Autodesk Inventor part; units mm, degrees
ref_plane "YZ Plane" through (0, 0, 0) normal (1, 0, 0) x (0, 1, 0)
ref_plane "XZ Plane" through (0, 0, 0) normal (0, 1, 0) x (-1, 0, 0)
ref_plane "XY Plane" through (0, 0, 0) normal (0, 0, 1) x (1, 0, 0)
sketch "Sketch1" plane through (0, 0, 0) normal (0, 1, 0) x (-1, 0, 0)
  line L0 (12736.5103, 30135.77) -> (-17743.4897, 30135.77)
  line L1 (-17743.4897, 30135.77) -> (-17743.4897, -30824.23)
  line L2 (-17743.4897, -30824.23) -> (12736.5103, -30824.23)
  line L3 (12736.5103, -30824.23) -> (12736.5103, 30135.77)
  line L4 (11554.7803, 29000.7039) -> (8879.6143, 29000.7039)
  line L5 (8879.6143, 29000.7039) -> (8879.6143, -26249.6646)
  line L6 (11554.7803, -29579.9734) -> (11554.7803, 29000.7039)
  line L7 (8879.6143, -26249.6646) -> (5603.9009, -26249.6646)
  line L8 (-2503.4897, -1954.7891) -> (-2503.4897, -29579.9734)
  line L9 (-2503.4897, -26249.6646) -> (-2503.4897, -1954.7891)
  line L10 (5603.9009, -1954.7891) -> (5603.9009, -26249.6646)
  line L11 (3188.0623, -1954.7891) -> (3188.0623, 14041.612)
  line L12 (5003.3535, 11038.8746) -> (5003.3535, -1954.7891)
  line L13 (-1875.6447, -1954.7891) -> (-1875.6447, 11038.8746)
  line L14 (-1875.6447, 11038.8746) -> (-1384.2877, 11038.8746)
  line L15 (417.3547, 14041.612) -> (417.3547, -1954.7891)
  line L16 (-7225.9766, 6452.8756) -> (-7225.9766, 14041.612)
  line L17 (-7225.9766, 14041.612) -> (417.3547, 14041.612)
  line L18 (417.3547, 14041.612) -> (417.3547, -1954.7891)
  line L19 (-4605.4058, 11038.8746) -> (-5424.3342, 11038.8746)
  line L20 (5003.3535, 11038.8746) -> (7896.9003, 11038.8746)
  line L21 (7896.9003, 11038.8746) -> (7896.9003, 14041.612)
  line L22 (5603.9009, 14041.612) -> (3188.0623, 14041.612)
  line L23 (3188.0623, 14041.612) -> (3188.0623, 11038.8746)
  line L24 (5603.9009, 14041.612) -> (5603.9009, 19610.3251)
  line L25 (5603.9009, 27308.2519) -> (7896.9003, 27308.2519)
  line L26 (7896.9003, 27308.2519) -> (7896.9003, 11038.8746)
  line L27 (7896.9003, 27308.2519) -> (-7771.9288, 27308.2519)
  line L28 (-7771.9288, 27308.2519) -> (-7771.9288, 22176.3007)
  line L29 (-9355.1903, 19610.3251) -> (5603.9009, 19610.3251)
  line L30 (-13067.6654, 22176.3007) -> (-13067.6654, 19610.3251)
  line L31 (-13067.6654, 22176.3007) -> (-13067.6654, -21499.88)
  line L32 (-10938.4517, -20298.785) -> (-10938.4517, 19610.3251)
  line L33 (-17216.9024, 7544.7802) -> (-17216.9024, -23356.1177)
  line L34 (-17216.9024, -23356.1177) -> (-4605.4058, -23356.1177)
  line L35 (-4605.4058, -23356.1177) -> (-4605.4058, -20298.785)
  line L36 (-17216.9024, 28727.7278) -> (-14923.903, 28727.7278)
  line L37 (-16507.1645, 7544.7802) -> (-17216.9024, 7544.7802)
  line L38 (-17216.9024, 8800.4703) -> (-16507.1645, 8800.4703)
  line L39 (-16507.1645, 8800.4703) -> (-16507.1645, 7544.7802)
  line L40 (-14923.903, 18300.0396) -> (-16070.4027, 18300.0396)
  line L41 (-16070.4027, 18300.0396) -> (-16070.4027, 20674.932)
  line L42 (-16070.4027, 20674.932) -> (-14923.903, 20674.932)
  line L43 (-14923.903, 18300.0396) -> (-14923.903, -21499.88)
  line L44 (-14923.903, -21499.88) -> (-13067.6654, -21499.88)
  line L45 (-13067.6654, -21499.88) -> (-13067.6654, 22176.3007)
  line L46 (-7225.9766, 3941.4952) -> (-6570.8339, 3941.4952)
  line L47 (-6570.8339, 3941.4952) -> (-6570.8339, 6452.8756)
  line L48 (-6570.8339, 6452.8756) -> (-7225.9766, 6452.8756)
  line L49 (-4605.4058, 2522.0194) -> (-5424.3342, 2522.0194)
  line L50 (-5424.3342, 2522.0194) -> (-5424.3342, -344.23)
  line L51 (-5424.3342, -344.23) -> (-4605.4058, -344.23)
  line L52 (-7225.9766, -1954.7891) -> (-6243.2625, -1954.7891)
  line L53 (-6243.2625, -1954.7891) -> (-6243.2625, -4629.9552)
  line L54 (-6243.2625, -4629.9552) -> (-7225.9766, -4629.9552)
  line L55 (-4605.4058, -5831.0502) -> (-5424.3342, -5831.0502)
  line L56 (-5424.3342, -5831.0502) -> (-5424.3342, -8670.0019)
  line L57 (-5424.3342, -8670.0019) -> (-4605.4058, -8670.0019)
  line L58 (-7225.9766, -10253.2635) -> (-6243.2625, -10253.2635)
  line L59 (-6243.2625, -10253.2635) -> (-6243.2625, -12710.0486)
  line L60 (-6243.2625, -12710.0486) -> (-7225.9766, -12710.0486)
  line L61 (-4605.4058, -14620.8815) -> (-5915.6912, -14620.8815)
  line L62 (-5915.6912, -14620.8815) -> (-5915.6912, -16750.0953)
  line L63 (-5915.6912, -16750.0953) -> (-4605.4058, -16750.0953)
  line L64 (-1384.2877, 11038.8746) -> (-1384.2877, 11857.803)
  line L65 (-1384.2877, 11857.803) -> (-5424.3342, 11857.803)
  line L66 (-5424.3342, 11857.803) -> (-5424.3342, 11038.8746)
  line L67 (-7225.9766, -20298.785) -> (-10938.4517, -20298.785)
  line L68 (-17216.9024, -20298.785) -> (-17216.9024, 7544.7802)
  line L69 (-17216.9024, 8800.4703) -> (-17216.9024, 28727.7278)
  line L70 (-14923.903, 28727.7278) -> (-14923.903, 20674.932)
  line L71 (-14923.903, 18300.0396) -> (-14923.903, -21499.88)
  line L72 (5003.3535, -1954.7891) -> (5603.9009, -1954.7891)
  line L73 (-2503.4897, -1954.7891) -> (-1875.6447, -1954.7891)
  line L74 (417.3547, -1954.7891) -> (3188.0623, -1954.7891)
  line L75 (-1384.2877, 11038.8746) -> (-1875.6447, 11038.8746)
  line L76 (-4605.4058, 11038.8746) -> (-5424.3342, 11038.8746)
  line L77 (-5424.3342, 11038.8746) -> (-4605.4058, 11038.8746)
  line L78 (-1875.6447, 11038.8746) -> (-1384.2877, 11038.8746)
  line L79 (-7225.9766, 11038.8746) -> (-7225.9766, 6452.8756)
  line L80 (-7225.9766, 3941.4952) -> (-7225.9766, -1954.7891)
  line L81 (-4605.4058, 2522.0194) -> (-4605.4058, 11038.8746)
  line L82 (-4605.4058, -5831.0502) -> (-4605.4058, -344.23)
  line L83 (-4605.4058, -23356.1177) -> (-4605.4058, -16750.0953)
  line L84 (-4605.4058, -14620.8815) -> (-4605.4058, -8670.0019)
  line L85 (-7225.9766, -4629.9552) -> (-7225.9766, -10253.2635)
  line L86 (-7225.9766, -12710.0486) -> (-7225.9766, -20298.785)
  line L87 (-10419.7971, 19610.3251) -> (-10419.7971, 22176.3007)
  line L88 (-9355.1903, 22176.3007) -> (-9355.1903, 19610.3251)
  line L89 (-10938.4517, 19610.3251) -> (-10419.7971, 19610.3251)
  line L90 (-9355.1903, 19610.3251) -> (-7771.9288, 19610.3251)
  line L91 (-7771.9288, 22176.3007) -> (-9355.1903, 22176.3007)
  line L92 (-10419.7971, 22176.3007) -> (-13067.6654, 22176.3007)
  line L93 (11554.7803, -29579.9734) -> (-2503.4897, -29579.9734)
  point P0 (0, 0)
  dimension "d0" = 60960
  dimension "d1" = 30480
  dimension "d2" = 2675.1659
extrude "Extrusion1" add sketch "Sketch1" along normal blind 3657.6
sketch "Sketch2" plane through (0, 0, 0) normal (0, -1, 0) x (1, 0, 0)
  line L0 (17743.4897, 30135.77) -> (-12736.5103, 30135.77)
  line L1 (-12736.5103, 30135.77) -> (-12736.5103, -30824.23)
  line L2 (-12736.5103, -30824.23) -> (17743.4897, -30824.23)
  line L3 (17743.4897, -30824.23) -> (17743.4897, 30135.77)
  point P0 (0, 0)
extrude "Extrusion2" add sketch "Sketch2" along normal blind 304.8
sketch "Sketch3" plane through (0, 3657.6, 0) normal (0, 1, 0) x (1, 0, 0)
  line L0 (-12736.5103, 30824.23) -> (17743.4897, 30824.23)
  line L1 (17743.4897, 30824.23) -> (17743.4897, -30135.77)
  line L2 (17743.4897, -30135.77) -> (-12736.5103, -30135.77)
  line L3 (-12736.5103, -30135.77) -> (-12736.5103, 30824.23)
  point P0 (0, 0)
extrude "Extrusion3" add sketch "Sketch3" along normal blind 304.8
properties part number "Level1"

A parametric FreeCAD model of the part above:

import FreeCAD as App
import Part
import Sketcher
Q = App.Units.Quantity


def add_polygon(sketch, points):
    """Adds a closed chain of lines whose ends are joined by coincident constraints."""
    first, n = sketch.GeometryCount, len(points)
    for a, b in zip(points, points[1:] + points[:1]):
        sketch.addGeometry(Part.LineSegment(App.Vector(*a, 0), App.Vector(*b, 0)), False)
    for i in range(n):
        sketch.addConstraint(Sketcher.Constraint("Coincident", first + i, 2, first + (i + 1) % n, 1))

doc = App.newDocument("Part")
body = doc.addObject("PartDesign::Body", "Body")

sketch1 = body.newObject("Sketcher::SketchObject", "Sketch")
sketch1.AttachmentSupport = (doc.getObject("XZ_Plane"), [""])
sketch1.MapMode = "FlatFace"
add_polygon(sketch1, [(-12736.5103, -30824.23), (-12736.5103, 30135.77), (17743.4897, 30135.77), (17743.4897, -30824.23)])
add_polygon(sketch1, [(-8879.6143, 29000.7039), (-11554.7803, 29000.7039), (-11554.7803, -29579.9734), (2503.4897, -29579.9734), (2503.4897, -1954.7891), (1875.6447, -1954.7891), (1875.6447, 11038.8746), (1384.2877, 11038.8746), (1384.2877, 11857.803), (5424.3342, 11857.803), (5424.3342, 11038.8746), (4605.4058, 11038.8746), (4605.4058, 2522.0194), (5424.3342, 2522.0194), (5424.3342, -344.23), (4605.4058, -344.23), (4605.4058, -5831.0502), (5424.3342, -5831.0502), (5424.3342, -8670.0019), (4605.4058, -8670.0019), (4605.4058, -14620.8815), (5915.6912, -14620.8815), (5915.6912, -16750.0953), (4605.4058, -16750.0953), (4605.4058, -23356.1177), (17216.9024, -23356.1177), (17216.9024, 7544.7802), (16507.1645, 7544.7802), (16507.1645, 8800.4703), (17216.9024, 8800.4703), (17216.9024, 28727.7278), (14923.903, 28727.7278), (14923.903, 20674.932), (16070.4027, 20674.932), (16070.4027, 18300.0396), (14923.903, 18300.0396), (14923.903, -21499.88), (13067.6654, -21499.88), (13067.6654, 22176.3007), (10419.7971, 22176.3007), (10419.7971, 19610.3251), (10938.4517, 19610.3251), (10938.4517, -20298.785), (7225.9766, -20298.785), (7225.9766, -12710.0486), (6243.2625, -12710.0486), (6243.2625, -10253.2635), (7225.9766, -10253.2635), (7225.9766, -4629.9552), (6243.2625, -4629.9552), (6243.2625, -1954.7891), (7225.9766, -1954.7891), (7225.9766, 3941.4952), (6570.8339, 3941.4952), (6570.8339, 6452.8756), (7225.9766, 6452.8756), (7225.9766, 14041.612), (-417.3547, 14041.612), (-417.3547, -1954.7891), (-3188.0623, -1954.7891), (-3188.0623, 14041.612), (-5603.9009, 14041.612), (-5603.9009, 19610.3251), (9355.1903, 19610.3251), (9355.1903, 22176.3007), (7771.9288, 22176.3007), (7771.9288, 27308.2519), (-7896.9003, 27308.2519), (-7896.9003, 11038.8746), (-5003.3535, 11038.8746), (-5003.3535, -1954.7891), (-5603.9009, -1954.7891), (-5603.9009, -26249.6646), (-8879.6143, -26249.6646)])
sketch1.addConstraint([
    Sketcher.Constraint("Vertical", 0),
    Sketcher.Constraint("Horizontal", 1),
    Sketcher.Constraint("Vertical", 2),
    Sketcher.Constraint("Horizontal", 3),
    Sketcher.Constraint("Horizontal", 4),
    Sketcher.Constraint("Vertical", 5),
    Sketcher.Constraint("Horizontal", 6),
    Sketcher.Constraint("Vertical", 7),
    Sketcher.Constraint("Horizontal", 8),
    Sketcher.Constraint("Vertical", 9),
    Sketcher.Constraint("Horizontal", 10),
    Sketcher.Constraint("Vertical", 11),
    Sketcher.Constraint("Horizontal", 12),
    Sketcher.Constraint("Vertical", 13),
    Sketcher.Constraint("Horizontal", 14),
    Sketcher.Constraint("Vertical", 15),
    Sketcher.Constraint("Horizontal", 16),
    Sketcher.Constraint("Vertical", 17),
    Sketcher.Constraint("Horizontal", 18),
    Sketcher.Constraint("Vertical", 19),
    Sketcher.Constraint("Horizontal", 20),
    Sketcher.Constraint("Vertical", 21),
    Sketcher.Constraint("Horizontal", 22),
    Sketcher.Constraint("Vertical", 23),
    Sketcher.Constraint("Horizontal", 24),
    Sketcher.Constraint("Vertical", 25),
    Sketcher.Constraint("Horizontal", 26),
    Sketcher.Constraint("Vertical", 27),
    Sketcher.Constraint("Horizontal", 28),
    Sketcher.Constraint("Vertical", 29),
    Sketcher.Constraint("Horizontal", 30),
    Sketcher.Constraint("Vertical", 31),
    Sketcher.Constraint("Horizontal", 32),
    Sketcher.Constraint("Vertical", 33),
    Sketcher.Constraint("Horizontal", 34),
    Sketcher.Constraint("Vertical", 35),
    Sketcher.Constraint("Horizontal", 36),
    Sketcher.Constraint("Vertical", 37),
    Sketcher.Constraint("Horizontal", 38),
    Sketcher.Constraint("Vertical", 39),
    Sketcher.Constraint("Horizontal", 40),
    Sketcher.Constraint("Vertical", 41),
    Sketcher.Constraint("Horizontal", 42),
    Sketcher.Constraint("Vertical", 43),
    Sketcher.Constraint("Horizontal", 44),
    Sketcher.Constraint("Vertical", 45),
    Sketcher.Constraint("Horizontal", 46),
    Sketcher.Constraint("Vertical", 47),
    Sketcher.Constraint("Horizontal", 48),
    Sketcher.Constraint("Vertical", 49),
    Sketcher.Constraint("Horizontal", 50),
    Sketcher.Constraint("Vertical", 51),
    Sketcher.Constraint("Horizontal", 52),
    Sketcher.Constraint("Vertical", 53),
    Sketcher.Constraint("Horizontal", 54),
    Sketcher.Constraint("Vertical", 55),
    Sketcher.Constraint("Horizontal", 56),
    Sketcher.Constraint("Vertical", 57),
    Sketcher.Constraint("Horizontal", 58),
    Sketcher.Constraint("Vertical", 59),
    Sketcher.Constraint("Horizontal", 60),
    Sketcher.Constraint("Vertical", 61),
    Sketcher.Constraint("Horizontal", 62),
    Sketcher.Constraint("Vertical", 63),
    Sketcher.Constraint("Horizontal", 64),
    Sketcher.Constraint("Vertical", 65),
    Sketcher.Constraint("Horizontal", 66),
    Sketcher.Constraint("Vertical", 67),
    Sketcher.Constraint("Horizontal", 68),
    Sketcher.Constraint("Vertical", 69),
    Sketcher.Constraint("Horizontal", 70),
    Sketcher.Constraint("Vertical", 71),
    Sketcher.Constraint("Horizontal", 72),
    Sketcher.Constraint("Vertical", 73),
    Sketcher.Constraint("Horizontal", 74),
    Sketcher.Constraint("Vertical", 75),
    Sketcher.Constraint("Horizontal", 76),
    Sketcher.Constraint("Vertical", 77),
    Sketcher.Constraint("Horizontal", 10, 2, 13, 2),
    Sketcher.Constraint("Horizontal", 8, 2, 53, 2),
    Sketcher.Constraint("Horizontal", 54, 2, 61, 2),
    Sketcher.Constraint("Horizontal", 60, 2, 63, 2),
    Sketcher.Constraint("Horizontal", 44, 2, 65, 2),
    Sketcher.Constraint("Horizontal", 42, 2, 67, 2),
    Sketcher.Constraint("Horizontal", 14, 2, 71, 2),
    Sketcher.Constraint("Horizontal", 62, 2, 73, 2),
    Sketcher.Constraint("Vertical", 13, 2, 16, 2),
    Sketcher.Constraint("Vertical", 15, 2, 18, 2),
    Sketcher.Constraint("Vertical", 17, 2, 20, 2),
    Sketcher.Constraint("Vertical", 19, 2, 22, 2),
    Sketcher.Constraint("Vertical", 23, 2, 26, 2),
    Sketcher.Constraint("Vertical", 29, 2, 32, 2),
    Sketcher.Constraint("Vertical", 35, 2, 38, 2),
    Sketcher.Constraint("Vertical", 47, 2, 50, 2),
    Sketcher.Constraint("Vertical", 49, 2, 52, 2),
    Sketcher.Constraint("Vertical", 51, 2, 54, 2),
    Sketcher.Constraint("Vertical", 55, 2, 58, 2),
    Sketcher.Constraint("Vertical", 65, 2, 74, 2),
    Sketcher.Constraint("Equal", 22, 11),
    Sketcher.Constraint("Equal", 4, 53),
    Sketcher.Constraint("Equal", 47, 59),
    Sketcher.Constraint("DistanceX", 1, 1, 1, 2, Q("1200 in")),
    Sketcher.Constraint("DistanceY", 0, 1, 0, 2, Q("2400 in")),
    Sketcher.Constraint("DistanceX", 4, 2, 4, 1, Q("105.3215 in")),
    Sketcher.Constraint("DistanceY", -1, 1, 4, 2, Q("1141.76 in")),
    Sketcher.Constraint("DistanceX", 6, 1, 6, 2, Q("553.4752 in")),
    Sketcher.Constraint("DistanceX", 8, 2, 8, 1, Q("24.7183 in")),
    Sketcher.Constraint("DistanceX", 66, 1, 66, 2, Q("588.9406 in")),
    Sketcher.Constraint("DistanceX", 74, 2, 74, 1, Q("23.6436 in")),
    Sketcher.Constraint("DistanceX", 76, 2, 76, 1, Q("128.9651 in")),
    Sketcher.Constraint("DistanceY", 23, 2, 23, 1, Q("234.2866 in")),
    Sketcher.Constraint("DistanceY", 33, 1, 33, 2, Q("784.5377 in")),
    Sketcher.Constraint("DistanceY", 35, 2, 35, 1, Q("317.0392 in")),
    Sketcher.Constraint("DistanceY", 37, 2, 37, 1, Q("93.4997 in")),
    Sketcher.Constraint("DistanceY", 45, 2, 45, 1, Q("1571.2248 in")),
    Sketcher.Constraint("DistanceY", 51, 1, 51, 2, Q("221.3901 in")),
    Sketcher.Constraint("DistanceY", -1, 1, 37, 2, Q("720.474 in")),
    Sketcher.Constraint("DistanceX", 10, 2, 10, 1, Q("491.357 mm")),
    Sketcher.Constraint("DistanceX", 12, 1, 12, 2, Q("4040.0465 mm")),
    Sketcher.Constraint("DistanceX", 14, 2, 14, 1, Q("818.9284 mm")),
    Sketcher.Constraint("DistanceX", 24, 1, 24, 2, Q("1310.2854 mm")),
    Sketcher.Constraint("DistanceX", 28, 1, 28, 2, Q("12611.4966 mm")),
    Sketcher.Constraint("DistanceX", 30, 2, 30, 1, Q("709.738 mm")),
    Sketcher.Constraint("DistanceX", 34, 2, 34, 1, Q("2292.9994 mm")),
    Sketcher.Constraint("DistanceX", 36, 1, 36, 2, Q("1146.4997 mm")),
    Sketcher.Constraint("DistanceX", 40, 2, 40, 1, Q("1856.2376 mm")),
    Sketcher.Constraint("DistanceX", 42, 2, 42, 1, Q("2647.8683 mm")),
    Sketcher.Constraint("DistanceX", 44, 1, 44, 2, Q("518.6546 mm")),
    Sketcher.Constraint("DistanceX", 46, 2, 46, 1, Q("3712.475 mm")),
    Sketcher.Constraint("DistanceX", 48, 2, 48, 1, Q("982.714 mm")),
    Sketcher.Constraint("DistanceX", 56, 2, 56, 1, Q("655.1427 mm")),
    Sketcher.Constraint("DistanceX", 60, 2, 60, 1, Q("7643.3313 mm")),
    Sketcher.Constraint("DistanceX", 62, 2, 62, 1, Q("2770.7076 mm")),
    Sketcher.Constraint("DistanceX", 68, 2, 68, 1, Q("1583.2615 mm")),
    Sketcher.Constraint("DistanceX", 70, 2, 70, 1, Q("15668.829 mm")),
    Sketcher.Constraint("DistanceY", 5, 2, 5, 1, Q("58580.6773 mm")),
    Sketcher.Constraint("DistanceY", 7, 1, 7, 2, Q("27625.1843 mm")),
    Sketcher.Constraint("DistanceY", 9, 1, 9, 2, Q("12993.6637 mm")),
    Sketcher.Constraint("DistanceY", 15, 2, 15, 1, Q("8516.8552 mm")),
    Sketcher.Constraint("DistanceY", 17, 2, 17, 1, Q("2866.2494 mm")),
    Sketcher.Constraint("DistanceY", 19, 2, 19, 1, Q("5486.8202 mm")),
    Sketcher.Constraint("DistanceY", 21, 2, 21, 1, Q("2838.9517 mm")),
    Sketcher.Constraint("DistanceY", 25, 2, 25, 1, Q("2129.2138 mm")),
    Sketcher.Constraint("DistanceY", 27, 2, 27, 1, Q("6606.0224 mm")),
    Sketcher.Constraint("DistanceY", 29, 1, 29, 2, Q("30900.898 mm")),
    Sketcher.Constraint("DistanceY", 39, 2, 39, 1, Q("39799.9196 mm")),
    Sketcher.Constraint("DistanceY", 41, 1, 41, 2, Q("43676.1807 mm")),
    Sketcher.Constraint("DistanceY", 43, 2, 43, 1, Q("2565.9756 mm")),
    Sketcher.Constraint("DistanceY", 47, 1, 47, 2, Q("7588.7364 mm")),
    Sketcher.Constraint("DistanceY", 55, 1, 55, 2, Q("5896.2843 mm")),
    Sketcher.Constraint("DistanceY", 57, 1, 57, 2, Q("2511.3804 mm")),
    Sketcher.Constraint("DistanceY", 69, 1, 69, 2, Q("5131.9512 mm")),
    Sketcher.Constraint("DistanceY", 75, 2, 75, 1, Q("24294.8755 mm")),
    Sketcher.Constraint("DistanceX", 4, 2, -1, 1, Q("454.9126 in")),
    Sketcher.Constraint("DistanceX", 0, 2, -1, 1, Q("12736.5103 mm")),
    Sketcher.Constraint("DistanceY", -1, 1, 0, 2, Q("30135.77 mm")),
])
pad1 = body.newObject("PartDesign::Pad", "Pad")
pad1.Profile = sketch1
pad1.Length = Q("144 in")
pad1.Reversed = True

sketch2 = body.newObject("Sketcher::SketchObject", "Sketch001")
sketch2.AttachmentSupport = (doc.getObject("XZ_Plane"), [""])
sketch2.MapMode = "FlatFace"
add_polygon(sketch2, [(17743.4897, -30824.23), (17743.4897, 30135.77), (-12736.5103, 30135.77), (-12736.5103, -30824.23)])
sketch2.addConstraint([
    Sketcher.Constraint("Vertical", 0),
    Sketcher.Constraint("Horizontal", 1),
    Sketcher.Constraint("Vertical", 2),
    Sketcher.Constraint("Horizontal", 3),
    Sketcher.Constraint("DistanceX", 1, 2, 1, 1, Q("1200 in")),
    Sketcher.Constraint("DistanceY", 0, 1, 0, 2, Q("2400 in")),
    Sketcher.Constraint("DistanceX", -1, 1, 0, 2, Q("17743.4897 mm")),
    Sketcher.Constraint("DistanceY", -1, 1, 0, 2, Q("30135.77 mm")),
])
pad2 = body.newObject("PartDesign::Pad", "Pad001")
pad2.Profile = sketch2
pad2.Length = Q("12 in")

sketch3 = body.newObject("Sketcher::SketchObject", "Sketch002")
sketch3.AttachmentSupport = (doc.getObject("XZ_Plane"), [""])
sketch3.MapMode = "FlatFace"
sketch3.AttachmentOffset = App.Placement(App.Vector(0, 0, -144 * 25.4), App.Rotation())
add_polygon(sketch3, [(17743.4897, -30824.23), (-12736.5103, -30824.23), (-12736.5103, 30135.77), (17743.4897, 30135.77)])
sketch3.addConstraint([
    Sketcher.Constraint("Horizontal", 0),
    Sketcher.Constraint("Vertical", 1),
    Sketcher.Constraint("Horizontal", 2),
    Sketcher.Constraint("Vertical", 3),
    Sketcher.Constraint("DistanceX", 0, 2, 0, 1, Q("1200 in")),
    Sketcher.Constraint("DistanceY", 1, 1, 1, 2, Q("2400 in")),
    Sketcher.Constraint("DistanceX", 0, 2, -1, 1, Q("12736.5103 mm")),
    Sketcher.Constraint("DistanceY", 0, 2, -1, 1, Q("30824.23 mm")),
])
pad3 = body.newObject("PartDesign::Pad", "Pad002")
pad3.Profile = sketch3
pad3.Length = Q("12 in")
pad3.Reversed = True

doc.recompute()
